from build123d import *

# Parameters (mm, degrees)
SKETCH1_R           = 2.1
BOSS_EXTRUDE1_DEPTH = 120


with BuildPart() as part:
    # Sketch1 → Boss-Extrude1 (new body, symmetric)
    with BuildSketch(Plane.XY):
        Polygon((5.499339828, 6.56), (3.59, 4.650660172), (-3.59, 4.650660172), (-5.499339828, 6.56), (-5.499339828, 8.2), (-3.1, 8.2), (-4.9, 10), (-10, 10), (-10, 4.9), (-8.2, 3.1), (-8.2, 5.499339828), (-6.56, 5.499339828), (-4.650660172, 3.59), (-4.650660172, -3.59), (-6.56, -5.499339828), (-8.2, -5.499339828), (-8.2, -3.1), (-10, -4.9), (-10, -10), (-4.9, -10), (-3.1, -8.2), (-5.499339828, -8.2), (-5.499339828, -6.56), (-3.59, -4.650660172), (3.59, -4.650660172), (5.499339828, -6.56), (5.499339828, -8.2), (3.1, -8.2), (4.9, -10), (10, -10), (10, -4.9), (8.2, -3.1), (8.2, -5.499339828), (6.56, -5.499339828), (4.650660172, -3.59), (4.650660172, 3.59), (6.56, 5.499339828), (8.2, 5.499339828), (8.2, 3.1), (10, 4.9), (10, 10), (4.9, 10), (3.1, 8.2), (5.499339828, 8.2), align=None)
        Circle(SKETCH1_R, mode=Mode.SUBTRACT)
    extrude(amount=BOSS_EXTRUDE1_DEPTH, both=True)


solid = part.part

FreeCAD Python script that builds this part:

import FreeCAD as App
import Part
import Sketcher
from FreeCAD import Vector


def add_polygon(sketch, points):
    """Adds a closed chain of lines whose ends are joined by coincident constraints."""
    first, n = sketch.GeometryCount, len(points)
    for a, b in zip(points, points[1:] + points[:1]):
        sketch.addGeometry(Part.LineSegment(App.Vector(*a, 0), App.Vector(*b, 0)), False)
    for i in range(n):
        sketch.addConstraint(Sketcher.Constraint("Coincident", first + i, 2, first + (i + 1) % n, 1))

doc = App.newDocument("Part")
body = doc.addObject("PartDesign::Body", "Body")

sketch1 = body.newObject("Sketcher::SketchObject", "Sketch")
sketch1.AttachmentSupport = (doc.getObject("XY_Plane"), [""])
sketch1.MapMode = "FlatFace"
add_polygon(sketch1, [(5.5, 6.6), (3.6, 4.7), (-3.6, 4.7), (-5.5, 6.6), (-5.5, 8.2), (-3.1, 8.2), (-4.9, 10), (-10, 10), (-10, 4.9), (-8.2, 3.1), (-8.2, 5.5), (-6.6, 5.5), (-4.7, 3.6), (-4.7, -3.6), (-6.6, -5.5), (-8.2, -5.5), (-8.2, -3.1), (-10, -4.9), (-10, -10), (-4.9, -10), (-3.1, -8.2), (-5.5, -8.2), (-5.5, -6.6), (-3.6, -4.7), (3.6, -4.7), (5.5, -6.6), (5.5, -8.2), (3.1, -8.2), (4.9, -10), (10, -10), (10, -4.9), (8.2, -3.1), (8.2, -5.5), (6.6, -5.5), (4.7, -3.6), (4.7, 3.6), (6.6, 5.5), (8.2, 5.5), (8.2, 3.1), (10, 4.9), (10, 10), (4.9, 10), (3.1, 8.2), (5.5, 8.2)])
sketch1.addGeometry(Part.Circle(Vector(0, 0, 0), Vector(0, 0, 1), 2.1), False)
sketch1.addConstraint([
    Sketcher.Constraint("Horizontal", 1),
    Sketcher.Constraint("Vertical", 3),
    Sketcher.Constraint("Horizontal", 4),
    Sketcher.Constraint("Horizontal", 6),
    Sketcher.Constraint("Vertical", 7),
    Sketcher.Constraint("Vertical", 9),
    Sketcher.Constraint("Horizontal", 10),
    Sketcher.Constraint("Vertical", 12),
    Sketcher.Constraint("Horizontal", 14),
    Sketcher.Constraint("Vertical", 15),
    Sketcher.Constraint("Vertical", 17),
    Sketcher.Constraint("Horizontal", 18),
    Sketcher.Constraint("Horizontal", 20),
    Sketcher.Constraint("Vertical", 21),
    Sketcher.Constraint("Horizontal", 23),
    Sketcher.Constraint("Vertical", 25),
    Sketcher.Constraint("Horizontal", 26),
    Sketcher.Constraint("Horizontal", 28),
    Sketcher.Constraint("Vertical", 29),
    Sketcher.Constraint("Vertical", 31),
    Sketcher.Constraint("Horizontal", 32),
    Sketcher.Constraint("Vertical", 34),
    Sketcher.Constraint("Horizontal", 36),
    Sketcher.Constraint("Vertical", 37),
    Sketcher.Constraint("Vertical", 39),
    Sketcher.Constraint("Horizontal", 40),
    Sketcher.Constraint("Horizontal", 42),
    Sketcher.Constraint("Vertical", 43),
    Sketcher.Constraint("Coincident", 44, 3, -1, 1),
    Sketcher.Constraint("Symmetric", 0, 2, 22, 2, -1, 1),
    Sketcher.Constraint("Symmetric", 2, 2, 24, 2, -1, 1),
    Sketcher.Constraint("Symmetric", 4, 2, 26, 2, -1, 1),
    Sketcher.Constraint("Symmetric", 5, 2, 27, 2, -1, 1),
    Sketcher.Constraint("Symmetric", 7, 2, 29, 2, -1, 1),
    Sketcher.Constraint("Symmetric", 8, 2, 30, 2, -1, 1),
    Sketcher.Constraint("Symmetric", 10, 2, 32, 2, -1, 1),
    Sketcher.Constraint("Symmetric", 11, 2, 33, 2, -1, 1),
    Sketcher.Constraint("Symmetric", 13, 2, 35, 2, -1, 1),
    Sketcher.Constraint("Symmetric", 15, 2, 37, 2, -1, 1),
    Sketcher.Constraint("Symmetric", 16, 2, 38, 2, -1, 1),
    Sketcher.Constraint("Symmetric", 18, 2, 40, 2, -1, 1),
    Sketcher.Constraint("Symmetric", 19, 2, 41, 2, -1, 1),
    Sketcher.Constraint("Symmetric", 21, 2, 43, 2, -1, 1),
    Sketcher.Constraint("Symmetric", 21, 2, 24, 2, -2),
    Sketcher.Constraint("Symmetric", 19, 2, 26, 2, -2),
    Sketcher.Constraint("Symmetric", 18, 2, 27, 2, -2),
    Sketcher.Constraint("Symmetric", 16, 2, 29, 2, -2),
    Sketcher.Constraint("Symmetric", 15, 2, 30, 2, -2),
    Sketcher.Constraint("Symmetric", 13, 2, 32, 2, -2),
    Sketcher.Constraint("Perpendicular", 0, 2),
    Sketcher.Constraint("Parallel", 2, 5),
    Sketcher.Constraint("Parallel", 5, 8),
    Sketcher.Constraint("Parallel", 8, 11),
    Sketcher.Constraint("Perpendicular", 11, 13),
    Sketcher.Constraint("Parallel", 13, 16),
    Sketcher.Constraint("Perpendicular", 22, 24),
    Sketcher.Constraint("Perpendicular", 33, 35),
    Sketcher.Constraint("Equal", 36, 3),
    Sketcher.Constraint("Equal", 40, 7),
    Sketcher.Constraint("Equal", 42, 9),
    Sketcher.Constraint("Equal", 23, 12),
    Sketcher.Constraint("Equal", 5, 8),
    Sketcher.Constraint("Equal", 2, 11),
    Sketcher.Constraint("Diameter", 44, 4.2),
    Sketcher.Constraint("DistanceX", 6, 2, 6, 1, 5.1),
    Sketcher.Constraint("DistanceY", -1, 1, 5, 2, 10.0),
    Sketcher.Constraint("DistanceY", 16, 2, 8, 2, 8.0),
    Sketcher.Constraint("DistanceX", 1, 2, 1, 1, 7.18),
    Sketcher.Constraint("DistanceX", 10, 1, 10, 2, 1.64),
    Sketcher.Constraint("DistanceX", 4, 1, 4, 2, 2.39934),
])
pad1 = body.newObject("PartDesign::Pad", "Pad")
pad1.Profile = sketch1
pad1.Length = 240
pad1.Midplane = True

doc.recompute()
